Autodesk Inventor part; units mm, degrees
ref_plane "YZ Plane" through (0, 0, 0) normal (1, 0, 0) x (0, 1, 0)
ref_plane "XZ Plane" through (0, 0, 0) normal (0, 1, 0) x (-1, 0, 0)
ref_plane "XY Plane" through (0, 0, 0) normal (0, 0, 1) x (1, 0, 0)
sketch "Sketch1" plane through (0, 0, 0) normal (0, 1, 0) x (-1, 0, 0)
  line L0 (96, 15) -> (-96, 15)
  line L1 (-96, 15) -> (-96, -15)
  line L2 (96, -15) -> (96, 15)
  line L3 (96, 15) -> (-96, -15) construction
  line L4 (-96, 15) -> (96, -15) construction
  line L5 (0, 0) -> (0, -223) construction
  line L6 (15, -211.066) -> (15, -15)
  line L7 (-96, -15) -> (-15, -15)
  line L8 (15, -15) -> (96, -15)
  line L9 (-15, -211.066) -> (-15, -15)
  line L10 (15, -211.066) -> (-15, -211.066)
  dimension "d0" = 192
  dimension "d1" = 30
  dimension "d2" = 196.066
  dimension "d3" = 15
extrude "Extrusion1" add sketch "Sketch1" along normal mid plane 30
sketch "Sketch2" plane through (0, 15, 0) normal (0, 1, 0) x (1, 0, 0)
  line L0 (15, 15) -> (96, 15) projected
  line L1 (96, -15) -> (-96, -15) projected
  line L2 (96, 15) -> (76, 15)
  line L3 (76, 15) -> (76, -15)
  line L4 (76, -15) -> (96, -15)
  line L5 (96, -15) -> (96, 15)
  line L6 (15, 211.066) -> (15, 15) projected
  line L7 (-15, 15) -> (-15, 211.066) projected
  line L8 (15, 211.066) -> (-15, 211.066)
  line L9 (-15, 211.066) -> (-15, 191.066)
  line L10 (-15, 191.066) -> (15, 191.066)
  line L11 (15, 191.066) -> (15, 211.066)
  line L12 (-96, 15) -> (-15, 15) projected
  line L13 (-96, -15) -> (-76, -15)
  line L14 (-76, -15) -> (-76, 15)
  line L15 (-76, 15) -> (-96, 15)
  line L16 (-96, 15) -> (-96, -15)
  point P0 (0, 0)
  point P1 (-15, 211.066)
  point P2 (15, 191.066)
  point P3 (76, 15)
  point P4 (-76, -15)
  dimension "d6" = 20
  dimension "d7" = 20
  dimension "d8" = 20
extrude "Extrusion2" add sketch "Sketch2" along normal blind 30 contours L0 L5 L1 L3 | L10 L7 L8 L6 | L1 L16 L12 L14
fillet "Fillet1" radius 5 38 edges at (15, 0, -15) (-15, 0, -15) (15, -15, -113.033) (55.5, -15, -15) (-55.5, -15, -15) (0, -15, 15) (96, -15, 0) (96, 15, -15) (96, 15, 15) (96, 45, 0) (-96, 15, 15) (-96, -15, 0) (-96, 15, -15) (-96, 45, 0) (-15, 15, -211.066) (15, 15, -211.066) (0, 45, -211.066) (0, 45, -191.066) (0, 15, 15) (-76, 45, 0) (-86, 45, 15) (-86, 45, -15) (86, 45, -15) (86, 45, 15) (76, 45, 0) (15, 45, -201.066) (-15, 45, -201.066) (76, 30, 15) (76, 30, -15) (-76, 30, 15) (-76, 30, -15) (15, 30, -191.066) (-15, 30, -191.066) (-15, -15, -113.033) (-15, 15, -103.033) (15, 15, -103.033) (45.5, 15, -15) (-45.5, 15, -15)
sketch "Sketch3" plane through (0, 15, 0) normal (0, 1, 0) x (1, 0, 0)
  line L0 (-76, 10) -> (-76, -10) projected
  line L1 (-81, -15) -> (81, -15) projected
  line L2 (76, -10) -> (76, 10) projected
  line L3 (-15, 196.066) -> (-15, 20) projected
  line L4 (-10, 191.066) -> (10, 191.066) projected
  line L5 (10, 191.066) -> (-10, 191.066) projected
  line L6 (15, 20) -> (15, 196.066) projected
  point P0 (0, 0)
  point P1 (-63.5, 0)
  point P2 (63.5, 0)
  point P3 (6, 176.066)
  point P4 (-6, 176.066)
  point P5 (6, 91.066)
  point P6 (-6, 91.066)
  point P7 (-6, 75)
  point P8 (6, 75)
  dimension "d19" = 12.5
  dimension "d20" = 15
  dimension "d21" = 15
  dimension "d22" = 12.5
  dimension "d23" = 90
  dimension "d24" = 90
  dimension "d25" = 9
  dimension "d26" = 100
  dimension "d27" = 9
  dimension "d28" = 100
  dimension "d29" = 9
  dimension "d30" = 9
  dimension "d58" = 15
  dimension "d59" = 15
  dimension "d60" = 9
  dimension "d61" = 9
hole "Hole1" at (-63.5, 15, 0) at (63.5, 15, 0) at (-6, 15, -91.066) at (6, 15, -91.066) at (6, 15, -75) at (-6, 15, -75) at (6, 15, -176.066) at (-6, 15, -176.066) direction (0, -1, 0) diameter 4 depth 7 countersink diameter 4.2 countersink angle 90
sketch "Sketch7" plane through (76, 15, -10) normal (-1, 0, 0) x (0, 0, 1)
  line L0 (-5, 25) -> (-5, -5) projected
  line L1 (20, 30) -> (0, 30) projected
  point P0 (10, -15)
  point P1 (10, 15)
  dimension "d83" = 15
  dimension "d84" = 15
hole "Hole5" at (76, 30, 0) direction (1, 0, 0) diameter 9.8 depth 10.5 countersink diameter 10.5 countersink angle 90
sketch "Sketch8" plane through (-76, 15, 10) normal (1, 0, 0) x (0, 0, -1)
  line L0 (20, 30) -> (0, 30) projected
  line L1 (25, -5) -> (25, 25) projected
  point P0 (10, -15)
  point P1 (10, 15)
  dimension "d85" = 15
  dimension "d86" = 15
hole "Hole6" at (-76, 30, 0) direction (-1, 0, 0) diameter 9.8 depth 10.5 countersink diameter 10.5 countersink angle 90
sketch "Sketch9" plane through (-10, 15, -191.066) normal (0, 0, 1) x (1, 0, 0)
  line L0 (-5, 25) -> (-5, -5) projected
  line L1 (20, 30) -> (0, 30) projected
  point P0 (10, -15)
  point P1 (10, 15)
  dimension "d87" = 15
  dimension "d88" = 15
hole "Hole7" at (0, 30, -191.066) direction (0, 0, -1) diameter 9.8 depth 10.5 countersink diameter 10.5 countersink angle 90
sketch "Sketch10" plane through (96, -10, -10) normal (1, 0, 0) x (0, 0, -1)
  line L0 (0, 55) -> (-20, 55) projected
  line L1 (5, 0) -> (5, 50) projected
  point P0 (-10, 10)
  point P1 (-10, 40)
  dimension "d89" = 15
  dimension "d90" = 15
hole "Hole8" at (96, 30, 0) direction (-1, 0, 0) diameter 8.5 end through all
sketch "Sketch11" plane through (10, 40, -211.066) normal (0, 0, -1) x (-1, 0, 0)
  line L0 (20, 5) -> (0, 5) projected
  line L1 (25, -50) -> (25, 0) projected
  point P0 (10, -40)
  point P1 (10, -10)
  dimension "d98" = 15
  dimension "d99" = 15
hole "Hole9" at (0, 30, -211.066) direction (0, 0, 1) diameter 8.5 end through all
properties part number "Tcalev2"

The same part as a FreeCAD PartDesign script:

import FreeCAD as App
import Part
import Sketcher

V = App.Vector


def edges_at(feature, points):
    """Names of the edges that pass closest to the given points."""
    edges = feature.Shape.Edges
    near = lambda p: min(range(len(edges)), key=lambda i: edges[i].distToShape(Part.Vertex(*p))[0])
    return sorted({f"Edge{near(p) + 1}" for p in points})

doc = App.newDocument("Part")
body = doc.addObject("PartDesign::Body", "Body")

# Sketch on XZ plane
sketch1 = body.newObject("Sketcher::SketchObject", "Sketch")
sketch1.AttachmentSupport = (doc.getObject("XZ_Plane"), [""])
sketch1.MapMode = "FlatFace"
sketch1.addGeometry(Part.LineSegment(V(-96, -15, 0), V(-96, 15, 0)), False)
sketch1.addGeometry(Part.LineSegment(V(-96, 15, 0), V(96, 15, 0)), False)
sketch1.addGeometry(Part.LineSegment(V(96, 15, 0), V(96, -15, 0)), False)
sketch1.addGeometry(Part.LineSegment(V(96, -15, 0), V(15, -15, 0)), False)
sketch1.addGeometry(Part.LineSegment(V(15, -15, 0), V(15, -211, 0)), False)
sketch1.addGeometry(Part.LineSegment(V(15, -211, 0), V(-15, -211, 0)), False)
sketch1.addGeometry(Part.LineSegment(V(-15, -211, 0), V(-15, -15, 0)), False)
sketch1.addGeometry(Part.LineSegment(V(-15, -15, 0), V(-96, -15, 0)), False)
sketch1.addConstraint(Sketcher.Constraint("Coincident", 0, 2, 1, 1))
sketch1.addConstraint(Sketcher.Constraint("Coincident", 1, 2, 2, 1))
sketch1.addConstraint(Sketcher.Constraint("Coincident", 2, 2, 3, 1))
sketch1.addConstraint(Sketcher.Constraint("Coincident", 3, 2, 4, 1))
sketch1.addConstraint(Sketcher.Constraint("Coincident", 4, 2, 5, 1))
sketch1.addConstraint(Sketcher.Constraint("Coincident", 5, 2, 6, 1))
sketch1.addConstraint(Sketcher.Constraint("Coincident", 6, 2, 7, 1))
sketch1.addConstraint(Sketcher.Constraint("Coincident", 7, 2, 0, 1))
sketch1.addConstraint(Sketcher.Constraint("Vertical", 0))
sketch1.addConstraint(Sketcher.Constraint("Horizontal", 1))
sketch1.addConstraint(Sketcher.Constraint("Vertical", 2))
sketch1.addConstraint(Sketcher.Constraint("Horizontal", 3))
sketch1.addConstraint(Sketcher.Constraint("Vertical", 4))
sketch1.addConstraint(Sketcher.Constraint("Horizontal", 5))
sketch1.addConstraint(Sketcher.Constraint("Vertical", 6))
sketch1.addConstraint(Sketcher.Constraint("Horizontal", 7))
sketch1.addConstraint(Sketcher.Constraint("Symmetric", 0, 2, 2, 2, -1, 1))
sketch1.addConstraint(Sketcher.Constraint("Symmetric", 3, 2, 6, 2, -2))
sketch1.addConstraint(Sketcher.Constraint("Equal", 5, 0))
sketch1.addConstraint(Sketcher.Constraint("DistanceX", 1, 1, 1, 2, 192.0))
sketch1.addConstraint(Sketcher.Constraint("DistanceX", 5, 2, 5, 1, 30.0))
sketch1.addConstraint(Sketcher.Constraint("DistanceY", 4, 2, 4, 1, 196.066))
pad1 = body.newObject("PartDesign::Pad", "Pad")
pad1.Profile = sketch1
pad1.Length = 30
pad1.Midplane = True

# Sketch on XZ plane
sketch2 = body.newObject("Sketcher::SketchObject", "Sketch001")
sketch2.AttachmentSupport = (doc.getObject("XZ_Plane"), [""])
sketch2.MapMode = "FlatFace"
sketch2.AttachmentOffset = App.Placement(V(0, 0, -15), App.Rotation())
sketch2.addGeometry(Part.LineSegment(V(96, -15, 0), V(76, -15, 0)), False)
sketch2.addGeometry(Part.LineSegment(V(76, -15, 0), V(76, 15, 0)), False)
sketch2.addGeometry(Part.LineSegment(V(76, 15, 0), V(96, 15, 0)), False)
sketch2.addGeometry(Part.LineSegment(V(96, 15, 0), V(96, -15, 0)), False)
sketch2.addGeometry(Part.LineSegment(V(-15, -191, 0), V(15, -191, 0)), False)
sketch2.addGeometry(Part.LineSegment(V(15, -191, 0), V(15, -211, 0)), False)
sketch2.addGeometry(Part.LineSegment(V(15, -211, 0), V(-15, -211, 0)), False)
sketch2.addGeometry(Part.LineSegment(V(-15, -211, 0), V(-15, -191, 0)), False)
sketch2.addGeometry(Part.LineSegment(V(-96, 15, 0), V(-76, 15, 0)), False)
sketch2.addGeometry(Part.LineSegment(V(-76, 15, 0), V(-76, -15, 0)), False)
sketch2.addGeometry(Part.LineSegment(V(-76, -15, 0), V(-96, -15, 0)), False)
sketch2.addGeometry(Part.LineSegment(V(-96, -15, 0), V(-96, 15, 0)), False)
sketch2.addConstraint(Sketcher.Constraint("Coincident", 0, 2, 1, 1))
sketch2.addConstraint(Sketcher.Constraint("Coincident", 1, 2, 2, 1))
sketch2.addConstraint(Sketcher.Constraint("Coincident", 2, 2, 3, 1))
sketch2.addConstraint(Sketcher.Constraint("Coincident", 3, 2, 0, 1))
sketch2.addConstraint(Sketcher.Constraint("Coincident", 4, 2, 5, 1))
sketch2.addConstraint(Sketcher.Constraint("Coincident", 5, 2, 6, 1))
sketch2.addConstraint(Sketcher.Constraint("Coincident", 6, 2, 7, 1))
sketch2.addConstraint(Sketcher.Constraint("Coincident", 7, 2, 4, 1))
sketch2.addConstraint(Sketcher.Constraint("Coincident", 8, 2, 9, 1))
sketch2.addConstraint(Sketcher.Constraint("Coincident", 9, 2, 10, 1))
sketch2.addConstraint(Sketcher.Constraint("Coincident", 10, 2, 11, 1))
sketch2.addConstraint(Sketcher.Constraint("Coincident", 11, 2, 8, 1))
sketch2.addConstraint(Sketcher.Constraint("Horizontal", 0))
sketch2.addConstraint(Sketcher.Constraint("Vertical", 1))
sketch2.addConstraint(Sketcher.Constraint("Horizontal", 2))
sketch2.addConstraint(Sketcher.Constraint("Vertical", 3))
sketch2.addConstraint(Sketcher.Constraint("Horizontal", 4))
sketch2.addConstraint(Sketcher.Constraint("Vertical", 5))
sketch2.addConstraint(Sketcher.Constraint("Horizontal", 6))
sketch2.addConstraint(Sketcher.Constraint("Vertical", 7))
sketch2.addConstraint(Sketcher.Constraint("Horizontal", 8))
sketch2.addConstraint(Sketcher.Constraint("Vertical", 9))
sketch2.addConstraint(Sketcher.Constraint("Horizontal", 10))
sketch2.addConstraint(Sketcher.Constraint("Vertical", 11))
sketch2.addConstraint(Sketcher.Constraint("Symmetric", 0, 2, 8, 2, -1, 1))
sketch2.addConstraint(Sketcher.Constraint("Symmetric", 2, 2, 10, 2, -1, 1))
sketch2.addConstraint(Sketcher.Constraint("Horizontal", 2, 2, 8, 2))
sketch2.addConstraint(Sketcher.Constraint("Equal", 6, 1))
sketch2.addConstraint(Sketcher.Constraint("Equal", 10, 5))
sketch2.addConstraint(Sketcher.Constraint("DistanceX", 0, 2, 0, 1, 20.0))
sketch2.addConstraint(Sketcher.Constraint("DistanceX", 4, 1, 4, 2, 30.0))
sketch2.addConstraint(Sketcher.Constraint("DistanceX", -1, 1, 0, 2, 76.0))
sketch2.addConstraint(Sketcher.Constraint("DistanceX", -1, 1, 4, 2, 15.0))
sketch2.addConstraint(Sketcher.Constraint("DistanceY", 4, 2, -1, 1, 191.066))
pad2 = body.newObject("PartDesign::Pad", "Pad001")
pad2.Profile = sketch2
pad2.Length = 30
pad2.Reversed = True
doc.recompute()

fillet = body.newObject("PartDesign::Fillet", "Fillet")
fillet.Base = (pad2, edges_at(pad2, [
    (15, 0, -15),
    (-15, 0, -15),
    (15, -15, -113.033),
    (55.5, -15, -15),
    (-55.5, -15, -15),
    (0, -15, 15),
    (96, -15, 0),
    (96, 15, -15),
    (96, 15, 15),
    (96, 45, 0),
    (-96, 15, 15),
    (-96, -15, 0),
    (-96, 15, -15),
    (-96, 45, 0),
    (-15, 15, -211.066),
    (15, 15, -211.066),
    (0, 45, -211.066),
    (0, 45, -191.066),
    (0, 15, 15),
    (-76, 45, 0),
    (-86, 45, 15),
    (-86, 45, -15),
    (86, 45, -15),
    (86, 45, 15),
    (76, 45, 0),
    (15, 45, -201.066),
    (-15, 45, -201.066),
    (76, 30, 15),
    (76, 30, -15),
    (-76, 30, 15),
    (-76, 30, -15),
    (15, 30, -191.066),
    (-15, 30, -191.066),
    (-15, -15, -113.033),
    (-15, 15, -103.033),
    (15, 15, -103.033),
    (45.5, 15, -15),
    (-45.5, 15, -15),
]))
fillet.Radius = 5

# Sketch on XZ plane
sketch3 = body.newObject("Sketcher::SketchObject", "Sketch002")
sketch3.AttachmentSupport = (doc.getObject("XZ_Plane"), [""])
sketch3.MapMode = "FlatFace"
sketch3.AttachmentOffset = App.Placement(V(0, 0, -15), App.Rotation())
sketch3.addGeometry(Part.Circle(V(-63.5, 0, 0), V(0, 0, 1), 2), False)
sketch3.addGeometry(Part.Circle(V(63.5, 0, 0), V(0, 0, 1), 2), False)
sketch3.addGeometry(Part.Circle(V(-6, -91.1, 0), V(0, 0, 1), 2), False)
sketch3.addGeometry(Part.Circle(V(6, -91.1, 0), V(0, 0, 1), 2), False)
sketch3.addGeometry(Part.Circle(V(6, -75, 0), V(0, 0, 1), 2), False)
sketch3.addGeometry(Part.Circle(V(-6, -75, 0), V(0, 0, 1), 2), False)
sketch3.addGeometry(Part.Circle(V(6, -176.1, 0), V(0, 0, 1), 2), False)
sketch3.addGeometry(Part.Circle(V(-6, -176.1, 0), V(0, 0, 1), 2), False)
sketch3.addConstraint(Sketcher.Constraint("Equal", 0, 1))
sketch3.addConstraint(Sketcher.Constraint("Equal", 1, 2))
sketch3.addConstraint(Sketcher.Constraint("Equal", 2, 3))
sketch3.addConstraint(Sketcher.Constraint("Equal", 3, 4))
sketch3.addConstraint(Sketcher.Constraint("Equal", 4, 5))
sketch3.addConstraint(Sketcher.Constraint("Equal", 5, 6))
sketch3.addConstraint(Sketcher.Constraint("Equal", 6, 7))
sketch3.addConstraint(Sketcher.Constraint("Symmetric", 0, 3, 1, 3, -1, 1))
sketch3.addConstraint(Sketcher.Constraint("Symmetric", 2, 3, 3, 3, -2))
sketch3.addConstraint(Sketcher.Constraint("Symmetric", 4, 3, 5, 3, -2))
sketch3.addConstraint(Sketcher.Constraint("Symmetric", 6, 3, 7, 3, -2))
sketch3.addConstraint(Sketcher.Constraint("PointOnObject", 0, 3, -1))
sketch3.addConstraint(Sketcher.Constraint("Vertical", 3, 3, 4, 3))
sketch3.addConstraint(Sketcher.Constraint("Vertical", 4, 3, 6, 3))
sketch3.addConstraint(Sketcher.Constraint("Diameter", 0, 4.0))
sketch3.addConstraint(Sketcher.Constraint("DistanceX", 2, 3, -1, 1, 6.0))
sketch3.addConstraint(Sketcher.Constraint("DistanceY", 4, 3, -1, 1, 75.0))
sketch3.addConstraint(Sketcher.Constraint("DistanceX", 0, 3, 1, 3, 127.0))
sketch3.addConstraint(Sketcher.Constraint("DistanceY", 6, 3, 3, 3, 85.0))
sketch3.addConstraint(Sketcher.Constraint("DistanceY", 2, 3, -1, 1, 91.066))
doc.recompute()
hole = body.newObject("PartDesign::Hole", "Hole")
hole.Profile = sketch3
hole.ThreadType = "None"
hole.Diameter = 4
hole.DepthType = "Dimension"
hole.Depth = 7
hole.DrillPoint = "Flat"
hole.HoleCutType = "Countersink"
hole.HoleCutDiameter = 4.2
hole.HoleCutCountersinkAngle = 90
hole.Reversed = True

# Sketch on YZ plane
sketch4 = body.newObject("Sketcher::SketchObject", "Sketch003")
sketch4.AttachmentSupport = (doc.getObject("YZ_Plane"), [""])
sketch4.MapMode = "FlatFace"
sketch4.AttachmentOffset = App.Placement(V(0, 0, 76), App.Rotation())
sketch4.addGeometry(Part.Circle(V(30, 0, 0), V(0, 0, 1), 4.9), False)
sketch4.addConstraint(Sketcher.Constraint("PointOnObject", 0, 3, -1))
sketch4.addConstraint(Sketcher.Constraint("Diameter", 0, 9.8))
sketch4.addConstraint(Sketcher.Constraint("DistanceX", -1, 1, 0, 3, 30.0))
doc.recompute()
hole2 = body.newObject("PartDesign::Hole", "Hole001")
hole2.Profile = sketch4
hole2.ThreadType = "None"
hole2.Diameter = 9.8
hole2.DepthType = "Dimension"
hole2.Depth = 10.5
hole2.DrillPoint = "Flat"
hole2.HoleCutType = "Countersink"
hole2.HoleCutDiameter = 10.5
hole2.HoleCutCountersinkAngle = 90
hole2.Reversed = True

# Sketch on YZ plane
sketch5 = body.newObject("Sketcher::SketchObject", "Sketch004")
sketch5.AttachmentSupport = (doc.getObject("YZ_Plane"), [""])
sketch5.MapMode = "FlatFace"
sketch5.AttachmentOffset = App.Placement(V(0, 0, -76), App.Rotation())
sketch5.addGeometry(Part.Circle(V(30, 0, 0), V(0, 0, 1), 4.9), False)
sketch5.addConstraint(Sketcher.Constraint("PointOnObject", 0, 3, -1))
sketch5.addConstraint(Sketcher.Constraint("Diameter", 0, 9.8))
sketch5.addConstraint(Sketcher.Constraint("DistanceX", -1, 1, 0, 3, 30.0))
doc.recompute()
hole3 = body.newObject("PartDesign::Hole", "Hole002")
hole3.Profile = sketch5
hole3.ThreadType = "None"
hole3.Diameter = 9.8
hole3.DepthType = "Dimension"
hole3.Depth = 10.5
hole3.DrillPoint = "Flat"
hole3.HoleCutType = "Countersink"
hole3.HoleCutDiameter = 10.5
hole3.HoleCutCountersinkAngle = 90

# Sketch on XY plane
sketch6 = body.newObject("Sketcher::SketchObject", "Sketch005")
sketch6.AttachmentSupport = (doc.getObject("XY_Plane"), [""])
sketch6.MapMode = "FlatFace"
sketch6.AttachmentOffset = App.Placement(V(0, 0, -191.066), App.Rotation())
sketch6.addGeometry(Part.Circle(V(0, 30, 0), V(0, 0, 1), 4.9), False)
sketch6.addConstraint(Sketcher.Constraint("PointOnObject", 0, 3, -2))
sketch6.addConstraint(Sketcher.Constraint("Diameter", 0, 9.8))
sketch6.addConstraint(Sketcher.Constraint("DistanceY", -1, 1, 0, 3, 30.0))
doc.recompute()
hole4 = body.newObject("PartDesign::Hole", "Hole003")
hole4.Profile = sketch6
hole4.ThreadType = "None"
hole4.Diameter = 9.8
hole4.DepthType = "Dimension"
hole4.Depth = 10.5
hole4.DrillPoint = "Flat"
hole4.HoleCutType = "Countersink"
hole4.HoleCutDiameter = 10.5
hole4.HoleCutCountersinkAngle = 90

# Sketch on YZ plane
sketch7 = body.newObject("Sketcher::SketchObject", "Sketch006")
sketch7.AttachmentSupport = (doc.getObject("YZ_Plane"), [""])
sketch7.MapMode = "FlatFace"
sketch7.AttachmentOffset = App.Placement(V(0, 0, 96), App.Rotation())
sketch7.addGeometry(Part.Circle(V(30, 0, 0), V(0, 0, 1), 4.2), False)
sketch7.addConstraint(Sketcher.Constraint("PointOnObject", 0, 3, -1))
sketch7.addConstraint(Sketcher.Constraint("Diameter", 0, 8.5))
sketch7.addConstraint(Sketcher.Constraint("DistanceX", -1, 1, 0, 3, 30.0))
doc.recompute()
hole5 = body.newObject("PartDesign::Hole", "Hole004")
hole5.Profile = sketch7
hole5.ThreadType = "None"
hole5.Diameter = 8.5
hole5.DepthType = "ThroughAll"

# Sketch on XY plane
sketch8 = body.newObject("Sketcher::SketchObject", "Sketch007")
sketch8.AttachmentSupport = (doc.getObject("XY_Plane"), [""])
sketch8.MapMode = "FlatFace"
sketch8.AttachmentOffset = App.Placement(V(0, 0, -211.066), App.Rotation())
sketch8.addGeometry(Part.Circle(V(0, 30, 0), V(0, 0, 1), 4.2), False)
sketch8.addConstraint(Sketcher.Constraint("PointOnObject", 0, 3, -2))
sketch8.addConstraint(Sketcher.Constraint("Diameter", 0, 8.5))
sketch8.addConstraint(Sketcher.Constraint("DistanceY", -1, 1, 0, 3, 30.0))
doc.recompute()
hole6 = body.newObject("PartDesign::Hole", "Hole005")
hole6.Profile = sketch8
hole6.ThreadType = "None"
hole6.Diameter = 8.5
hole6.DepthType = "ThroughAll"
hole6.Reversed = True

doc.recompute()
